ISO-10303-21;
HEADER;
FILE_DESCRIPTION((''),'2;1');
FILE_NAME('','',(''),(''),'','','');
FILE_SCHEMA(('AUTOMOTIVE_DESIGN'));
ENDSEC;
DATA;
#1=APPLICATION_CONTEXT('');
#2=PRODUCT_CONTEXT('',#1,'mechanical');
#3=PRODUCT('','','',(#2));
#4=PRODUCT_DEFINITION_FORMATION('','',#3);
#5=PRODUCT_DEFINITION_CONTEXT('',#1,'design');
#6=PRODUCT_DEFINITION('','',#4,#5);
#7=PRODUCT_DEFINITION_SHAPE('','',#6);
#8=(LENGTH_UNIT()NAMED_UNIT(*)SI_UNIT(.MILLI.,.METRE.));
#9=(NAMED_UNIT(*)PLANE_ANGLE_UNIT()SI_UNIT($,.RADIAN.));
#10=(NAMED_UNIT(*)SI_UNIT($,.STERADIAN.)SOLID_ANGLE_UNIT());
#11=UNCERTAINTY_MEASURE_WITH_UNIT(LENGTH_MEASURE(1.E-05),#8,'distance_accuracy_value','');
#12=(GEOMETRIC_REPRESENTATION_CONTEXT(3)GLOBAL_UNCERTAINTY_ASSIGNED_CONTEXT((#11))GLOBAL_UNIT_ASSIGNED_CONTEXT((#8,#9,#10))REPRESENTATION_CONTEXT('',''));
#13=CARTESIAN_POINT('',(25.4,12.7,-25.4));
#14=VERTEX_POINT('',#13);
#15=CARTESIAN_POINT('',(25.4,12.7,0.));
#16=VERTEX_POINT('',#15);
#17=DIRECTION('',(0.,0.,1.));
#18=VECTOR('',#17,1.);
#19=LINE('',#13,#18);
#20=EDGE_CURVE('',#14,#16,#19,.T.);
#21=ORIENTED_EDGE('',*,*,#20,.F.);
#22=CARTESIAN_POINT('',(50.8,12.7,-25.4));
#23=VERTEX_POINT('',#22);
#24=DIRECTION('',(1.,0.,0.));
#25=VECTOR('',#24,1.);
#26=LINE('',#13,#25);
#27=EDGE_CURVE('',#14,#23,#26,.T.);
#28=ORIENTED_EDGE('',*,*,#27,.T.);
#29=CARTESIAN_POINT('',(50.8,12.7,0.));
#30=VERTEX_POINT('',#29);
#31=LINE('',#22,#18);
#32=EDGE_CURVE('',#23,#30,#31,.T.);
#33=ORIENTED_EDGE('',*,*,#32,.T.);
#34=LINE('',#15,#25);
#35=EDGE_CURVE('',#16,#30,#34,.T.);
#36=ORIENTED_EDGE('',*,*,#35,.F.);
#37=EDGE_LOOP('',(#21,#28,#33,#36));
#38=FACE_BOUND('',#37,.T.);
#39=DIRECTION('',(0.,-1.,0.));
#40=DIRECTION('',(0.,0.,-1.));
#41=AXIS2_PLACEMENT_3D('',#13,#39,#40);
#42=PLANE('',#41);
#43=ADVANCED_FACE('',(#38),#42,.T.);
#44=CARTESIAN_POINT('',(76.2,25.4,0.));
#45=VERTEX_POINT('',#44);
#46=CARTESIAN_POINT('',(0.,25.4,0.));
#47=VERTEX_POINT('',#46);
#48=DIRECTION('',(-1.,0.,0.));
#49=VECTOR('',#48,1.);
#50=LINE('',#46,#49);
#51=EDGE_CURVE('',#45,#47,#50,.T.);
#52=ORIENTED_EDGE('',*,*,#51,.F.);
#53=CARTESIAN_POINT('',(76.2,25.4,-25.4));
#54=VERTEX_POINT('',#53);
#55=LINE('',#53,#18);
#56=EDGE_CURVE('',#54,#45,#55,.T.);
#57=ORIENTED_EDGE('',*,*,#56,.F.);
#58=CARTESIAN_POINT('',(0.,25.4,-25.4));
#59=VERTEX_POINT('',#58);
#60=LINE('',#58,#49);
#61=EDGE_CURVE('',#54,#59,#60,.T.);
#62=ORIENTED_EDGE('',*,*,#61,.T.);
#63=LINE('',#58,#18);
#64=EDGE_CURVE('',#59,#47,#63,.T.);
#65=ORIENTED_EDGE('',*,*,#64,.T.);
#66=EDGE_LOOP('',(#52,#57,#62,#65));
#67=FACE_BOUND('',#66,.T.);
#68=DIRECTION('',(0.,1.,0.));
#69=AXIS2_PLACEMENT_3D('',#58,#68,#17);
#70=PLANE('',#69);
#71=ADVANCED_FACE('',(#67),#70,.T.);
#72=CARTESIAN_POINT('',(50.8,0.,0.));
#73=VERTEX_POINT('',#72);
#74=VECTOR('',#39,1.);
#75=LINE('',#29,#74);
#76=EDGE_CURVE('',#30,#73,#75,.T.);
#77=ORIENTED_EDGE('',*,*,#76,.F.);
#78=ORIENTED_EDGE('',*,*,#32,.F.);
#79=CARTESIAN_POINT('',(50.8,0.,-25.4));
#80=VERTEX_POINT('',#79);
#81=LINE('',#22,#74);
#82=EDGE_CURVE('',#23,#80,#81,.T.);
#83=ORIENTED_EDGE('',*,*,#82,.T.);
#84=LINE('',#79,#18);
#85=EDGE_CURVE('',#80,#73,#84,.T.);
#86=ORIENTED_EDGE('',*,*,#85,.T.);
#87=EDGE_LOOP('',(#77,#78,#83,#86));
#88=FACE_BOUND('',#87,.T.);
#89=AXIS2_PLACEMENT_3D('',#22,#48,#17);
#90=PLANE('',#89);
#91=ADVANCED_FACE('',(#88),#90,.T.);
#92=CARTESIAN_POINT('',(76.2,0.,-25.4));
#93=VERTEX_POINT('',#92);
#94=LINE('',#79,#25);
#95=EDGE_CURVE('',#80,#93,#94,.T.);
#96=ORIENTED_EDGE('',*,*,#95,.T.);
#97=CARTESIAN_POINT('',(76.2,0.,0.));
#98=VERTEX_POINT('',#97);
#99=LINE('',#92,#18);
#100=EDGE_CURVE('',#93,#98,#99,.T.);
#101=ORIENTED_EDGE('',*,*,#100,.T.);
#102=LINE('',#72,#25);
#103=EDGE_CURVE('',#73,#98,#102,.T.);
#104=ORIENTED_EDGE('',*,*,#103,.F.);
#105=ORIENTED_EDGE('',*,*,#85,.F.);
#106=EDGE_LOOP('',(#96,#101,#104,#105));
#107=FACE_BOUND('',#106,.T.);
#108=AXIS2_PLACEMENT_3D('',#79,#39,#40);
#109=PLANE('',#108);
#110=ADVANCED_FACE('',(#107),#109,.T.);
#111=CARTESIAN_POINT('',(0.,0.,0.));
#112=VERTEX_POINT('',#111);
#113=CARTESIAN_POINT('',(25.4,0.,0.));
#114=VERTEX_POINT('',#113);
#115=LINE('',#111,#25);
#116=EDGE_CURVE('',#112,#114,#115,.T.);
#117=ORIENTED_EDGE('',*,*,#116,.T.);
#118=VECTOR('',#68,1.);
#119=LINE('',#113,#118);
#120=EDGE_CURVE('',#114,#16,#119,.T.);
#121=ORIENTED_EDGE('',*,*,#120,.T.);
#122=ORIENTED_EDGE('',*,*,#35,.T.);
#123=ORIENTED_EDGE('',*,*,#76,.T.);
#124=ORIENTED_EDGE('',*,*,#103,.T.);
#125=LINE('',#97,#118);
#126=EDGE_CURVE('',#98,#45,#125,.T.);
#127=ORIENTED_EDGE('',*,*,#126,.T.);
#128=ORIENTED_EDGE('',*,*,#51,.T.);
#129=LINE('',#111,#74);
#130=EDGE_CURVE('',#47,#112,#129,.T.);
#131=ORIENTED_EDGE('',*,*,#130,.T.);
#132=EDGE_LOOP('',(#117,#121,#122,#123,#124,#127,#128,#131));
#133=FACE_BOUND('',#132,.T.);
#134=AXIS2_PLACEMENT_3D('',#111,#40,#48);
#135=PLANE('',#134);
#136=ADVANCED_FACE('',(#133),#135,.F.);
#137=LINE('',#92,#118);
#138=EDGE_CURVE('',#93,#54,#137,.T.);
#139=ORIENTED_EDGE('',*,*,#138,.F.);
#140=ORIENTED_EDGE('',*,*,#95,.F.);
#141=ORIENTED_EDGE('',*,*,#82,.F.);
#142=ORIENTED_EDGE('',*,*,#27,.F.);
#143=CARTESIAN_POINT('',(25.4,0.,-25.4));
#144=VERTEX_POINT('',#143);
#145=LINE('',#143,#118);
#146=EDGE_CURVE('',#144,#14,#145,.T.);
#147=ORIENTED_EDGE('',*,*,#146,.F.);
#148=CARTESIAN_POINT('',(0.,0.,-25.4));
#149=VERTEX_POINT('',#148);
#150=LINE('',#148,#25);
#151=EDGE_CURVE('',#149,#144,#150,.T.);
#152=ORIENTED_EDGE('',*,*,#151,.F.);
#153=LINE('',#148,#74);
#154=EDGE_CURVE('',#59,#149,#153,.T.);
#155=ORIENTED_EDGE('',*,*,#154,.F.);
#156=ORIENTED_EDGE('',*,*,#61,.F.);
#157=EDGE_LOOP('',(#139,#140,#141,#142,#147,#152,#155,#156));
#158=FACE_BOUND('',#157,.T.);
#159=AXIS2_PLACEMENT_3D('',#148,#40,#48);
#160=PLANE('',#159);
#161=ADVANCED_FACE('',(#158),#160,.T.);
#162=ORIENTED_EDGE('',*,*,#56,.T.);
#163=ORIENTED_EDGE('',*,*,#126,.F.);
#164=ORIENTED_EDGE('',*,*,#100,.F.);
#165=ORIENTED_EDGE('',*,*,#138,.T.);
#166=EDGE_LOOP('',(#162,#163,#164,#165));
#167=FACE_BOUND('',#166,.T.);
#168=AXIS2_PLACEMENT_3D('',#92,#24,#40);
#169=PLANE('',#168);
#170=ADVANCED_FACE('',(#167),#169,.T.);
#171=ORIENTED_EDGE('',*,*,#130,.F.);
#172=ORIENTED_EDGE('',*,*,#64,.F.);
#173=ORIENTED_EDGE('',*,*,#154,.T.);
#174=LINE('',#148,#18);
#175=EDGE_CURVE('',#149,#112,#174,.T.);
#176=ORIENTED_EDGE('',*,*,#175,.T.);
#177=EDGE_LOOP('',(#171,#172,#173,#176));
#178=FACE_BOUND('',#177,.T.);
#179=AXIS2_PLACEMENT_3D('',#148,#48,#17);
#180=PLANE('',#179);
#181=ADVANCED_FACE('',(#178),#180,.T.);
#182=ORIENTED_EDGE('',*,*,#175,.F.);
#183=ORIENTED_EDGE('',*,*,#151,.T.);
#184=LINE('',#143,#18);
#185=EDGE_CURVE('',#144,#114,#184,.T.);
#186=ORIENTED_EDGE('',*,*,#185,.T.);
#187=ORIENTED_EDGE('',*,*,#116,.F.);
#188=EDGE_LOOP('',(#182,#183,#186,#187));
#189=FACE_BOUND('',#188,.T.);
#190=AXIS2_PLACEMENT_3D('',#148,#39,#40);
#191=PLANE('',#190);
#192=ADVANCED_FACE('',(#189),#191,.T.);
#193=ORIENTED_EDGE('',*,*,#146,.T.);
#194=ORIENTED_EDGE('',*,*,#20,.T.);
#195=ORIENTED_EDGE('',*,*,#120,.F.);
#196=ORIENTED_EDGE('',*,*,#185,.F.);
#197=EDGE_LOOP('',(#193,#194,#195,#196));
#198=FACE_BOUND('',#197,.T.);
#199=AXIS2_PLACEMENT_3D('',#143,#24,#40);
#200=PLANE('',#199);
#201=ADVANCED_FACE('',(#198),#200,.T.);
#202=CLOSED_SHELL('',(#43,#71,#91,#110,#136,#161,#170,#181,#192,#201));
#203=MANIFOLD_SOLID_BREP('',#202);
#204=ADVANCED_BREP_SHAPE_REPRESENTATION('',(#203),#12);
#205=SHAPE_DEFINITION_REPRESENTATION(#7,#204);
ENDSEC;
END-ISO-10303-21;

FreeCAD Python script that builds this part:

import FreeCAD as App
import Part
import Sketcher
from FreeCAD import Vector
Q = App.Units.Quantity


def add_polygon(sketch, points):
    """Adds a closed chain of lines whose ends are joined by coincident constraints."""
    first, n = sketch.GeometryCount, len(points)
    for a, b in zip(points, points[1:] + points[:1]):
        sketch.addGeometry(Part.LineSegment(App.Vector(*a, 0), App.Vector(*b, 0)), False)
    for i in range(n):
        sketch.addConstraint(Sketcher.Constraint("Coincident", first + i, 2, first + (i + 1) % n, 1))

doc = App.newDocument("Part")
body = doc.addObject("PartDesign::Body", "Body")

# Sketch on XY plane
sketch1 = doc.addObject("Sketcher::SketchObject", "Sketch")
body.addObject(sketch1)
sketch1.AttachmentSupport = (doc.XY_Plane, [""])
sketch1.MapMode = "FlatFace"
add_polygon(sketch1, [(25.4, 0), (25.4, 12.7), (50.8, 12.7), (50.8, 0), (76.2, 0), (76.2, 25.4), (0, 25.4), (0, 0)])  # lines 0-7
sketch1.addConstraint(Sketcher.Constraint("Vertical", 0))
sketch1.addConstraint(Sketcher.Constraint("Horizontal", 1))
sketch1.addConstraint(Sketcher.Constraint("Vertical", 2))
sketch1.addConstraint(Sketcher.Constraint("Horizontal", 3))
sketch1.addConstraint(Sketcher.Constraint("Vertical", 4))
sketch1.addConstraint(Sketcher.Constraint("Horizontal", 5))
sketch1.addConstraint(Sketcher.Constraint("Vertical", 6))
sketch1.addConstraint(Sketcher.Constraint("Horizontal", 7))
sketch1.addConstraint(Sketcher.Constraint("Coincident", 6, 2, -1, 1))
sketch1.addConstraint(Sketcher.Constraint("PointOnObject", 2, 2, -1))
sketch1.addConstraint(Sketcher.Constraint("Equal", 1, 3))
sketch1.addConstraint(Sketcher.Constraint("Equal", 3, 7))
sketch1.addConstraint(Sketcher.Constraint("Equal", 7, 4))
sketch1.addConstraint(Sketcher.Constraint("DistanceX", 1, 1, 1, 2, Q("1 in")))
sketch1.addConstraint(Sketcher.Constraint("DistanceY", 0, 1, 0, 2, Q("0.5 in")))
pad1 = doc.addObject("PartDesign::Pad", "Pad")
body.addObject(pad1)
pad1.Profile = sketch1
pad1.Length = Q("1 in")
pad1.Reversed = True

doc.recompute()
